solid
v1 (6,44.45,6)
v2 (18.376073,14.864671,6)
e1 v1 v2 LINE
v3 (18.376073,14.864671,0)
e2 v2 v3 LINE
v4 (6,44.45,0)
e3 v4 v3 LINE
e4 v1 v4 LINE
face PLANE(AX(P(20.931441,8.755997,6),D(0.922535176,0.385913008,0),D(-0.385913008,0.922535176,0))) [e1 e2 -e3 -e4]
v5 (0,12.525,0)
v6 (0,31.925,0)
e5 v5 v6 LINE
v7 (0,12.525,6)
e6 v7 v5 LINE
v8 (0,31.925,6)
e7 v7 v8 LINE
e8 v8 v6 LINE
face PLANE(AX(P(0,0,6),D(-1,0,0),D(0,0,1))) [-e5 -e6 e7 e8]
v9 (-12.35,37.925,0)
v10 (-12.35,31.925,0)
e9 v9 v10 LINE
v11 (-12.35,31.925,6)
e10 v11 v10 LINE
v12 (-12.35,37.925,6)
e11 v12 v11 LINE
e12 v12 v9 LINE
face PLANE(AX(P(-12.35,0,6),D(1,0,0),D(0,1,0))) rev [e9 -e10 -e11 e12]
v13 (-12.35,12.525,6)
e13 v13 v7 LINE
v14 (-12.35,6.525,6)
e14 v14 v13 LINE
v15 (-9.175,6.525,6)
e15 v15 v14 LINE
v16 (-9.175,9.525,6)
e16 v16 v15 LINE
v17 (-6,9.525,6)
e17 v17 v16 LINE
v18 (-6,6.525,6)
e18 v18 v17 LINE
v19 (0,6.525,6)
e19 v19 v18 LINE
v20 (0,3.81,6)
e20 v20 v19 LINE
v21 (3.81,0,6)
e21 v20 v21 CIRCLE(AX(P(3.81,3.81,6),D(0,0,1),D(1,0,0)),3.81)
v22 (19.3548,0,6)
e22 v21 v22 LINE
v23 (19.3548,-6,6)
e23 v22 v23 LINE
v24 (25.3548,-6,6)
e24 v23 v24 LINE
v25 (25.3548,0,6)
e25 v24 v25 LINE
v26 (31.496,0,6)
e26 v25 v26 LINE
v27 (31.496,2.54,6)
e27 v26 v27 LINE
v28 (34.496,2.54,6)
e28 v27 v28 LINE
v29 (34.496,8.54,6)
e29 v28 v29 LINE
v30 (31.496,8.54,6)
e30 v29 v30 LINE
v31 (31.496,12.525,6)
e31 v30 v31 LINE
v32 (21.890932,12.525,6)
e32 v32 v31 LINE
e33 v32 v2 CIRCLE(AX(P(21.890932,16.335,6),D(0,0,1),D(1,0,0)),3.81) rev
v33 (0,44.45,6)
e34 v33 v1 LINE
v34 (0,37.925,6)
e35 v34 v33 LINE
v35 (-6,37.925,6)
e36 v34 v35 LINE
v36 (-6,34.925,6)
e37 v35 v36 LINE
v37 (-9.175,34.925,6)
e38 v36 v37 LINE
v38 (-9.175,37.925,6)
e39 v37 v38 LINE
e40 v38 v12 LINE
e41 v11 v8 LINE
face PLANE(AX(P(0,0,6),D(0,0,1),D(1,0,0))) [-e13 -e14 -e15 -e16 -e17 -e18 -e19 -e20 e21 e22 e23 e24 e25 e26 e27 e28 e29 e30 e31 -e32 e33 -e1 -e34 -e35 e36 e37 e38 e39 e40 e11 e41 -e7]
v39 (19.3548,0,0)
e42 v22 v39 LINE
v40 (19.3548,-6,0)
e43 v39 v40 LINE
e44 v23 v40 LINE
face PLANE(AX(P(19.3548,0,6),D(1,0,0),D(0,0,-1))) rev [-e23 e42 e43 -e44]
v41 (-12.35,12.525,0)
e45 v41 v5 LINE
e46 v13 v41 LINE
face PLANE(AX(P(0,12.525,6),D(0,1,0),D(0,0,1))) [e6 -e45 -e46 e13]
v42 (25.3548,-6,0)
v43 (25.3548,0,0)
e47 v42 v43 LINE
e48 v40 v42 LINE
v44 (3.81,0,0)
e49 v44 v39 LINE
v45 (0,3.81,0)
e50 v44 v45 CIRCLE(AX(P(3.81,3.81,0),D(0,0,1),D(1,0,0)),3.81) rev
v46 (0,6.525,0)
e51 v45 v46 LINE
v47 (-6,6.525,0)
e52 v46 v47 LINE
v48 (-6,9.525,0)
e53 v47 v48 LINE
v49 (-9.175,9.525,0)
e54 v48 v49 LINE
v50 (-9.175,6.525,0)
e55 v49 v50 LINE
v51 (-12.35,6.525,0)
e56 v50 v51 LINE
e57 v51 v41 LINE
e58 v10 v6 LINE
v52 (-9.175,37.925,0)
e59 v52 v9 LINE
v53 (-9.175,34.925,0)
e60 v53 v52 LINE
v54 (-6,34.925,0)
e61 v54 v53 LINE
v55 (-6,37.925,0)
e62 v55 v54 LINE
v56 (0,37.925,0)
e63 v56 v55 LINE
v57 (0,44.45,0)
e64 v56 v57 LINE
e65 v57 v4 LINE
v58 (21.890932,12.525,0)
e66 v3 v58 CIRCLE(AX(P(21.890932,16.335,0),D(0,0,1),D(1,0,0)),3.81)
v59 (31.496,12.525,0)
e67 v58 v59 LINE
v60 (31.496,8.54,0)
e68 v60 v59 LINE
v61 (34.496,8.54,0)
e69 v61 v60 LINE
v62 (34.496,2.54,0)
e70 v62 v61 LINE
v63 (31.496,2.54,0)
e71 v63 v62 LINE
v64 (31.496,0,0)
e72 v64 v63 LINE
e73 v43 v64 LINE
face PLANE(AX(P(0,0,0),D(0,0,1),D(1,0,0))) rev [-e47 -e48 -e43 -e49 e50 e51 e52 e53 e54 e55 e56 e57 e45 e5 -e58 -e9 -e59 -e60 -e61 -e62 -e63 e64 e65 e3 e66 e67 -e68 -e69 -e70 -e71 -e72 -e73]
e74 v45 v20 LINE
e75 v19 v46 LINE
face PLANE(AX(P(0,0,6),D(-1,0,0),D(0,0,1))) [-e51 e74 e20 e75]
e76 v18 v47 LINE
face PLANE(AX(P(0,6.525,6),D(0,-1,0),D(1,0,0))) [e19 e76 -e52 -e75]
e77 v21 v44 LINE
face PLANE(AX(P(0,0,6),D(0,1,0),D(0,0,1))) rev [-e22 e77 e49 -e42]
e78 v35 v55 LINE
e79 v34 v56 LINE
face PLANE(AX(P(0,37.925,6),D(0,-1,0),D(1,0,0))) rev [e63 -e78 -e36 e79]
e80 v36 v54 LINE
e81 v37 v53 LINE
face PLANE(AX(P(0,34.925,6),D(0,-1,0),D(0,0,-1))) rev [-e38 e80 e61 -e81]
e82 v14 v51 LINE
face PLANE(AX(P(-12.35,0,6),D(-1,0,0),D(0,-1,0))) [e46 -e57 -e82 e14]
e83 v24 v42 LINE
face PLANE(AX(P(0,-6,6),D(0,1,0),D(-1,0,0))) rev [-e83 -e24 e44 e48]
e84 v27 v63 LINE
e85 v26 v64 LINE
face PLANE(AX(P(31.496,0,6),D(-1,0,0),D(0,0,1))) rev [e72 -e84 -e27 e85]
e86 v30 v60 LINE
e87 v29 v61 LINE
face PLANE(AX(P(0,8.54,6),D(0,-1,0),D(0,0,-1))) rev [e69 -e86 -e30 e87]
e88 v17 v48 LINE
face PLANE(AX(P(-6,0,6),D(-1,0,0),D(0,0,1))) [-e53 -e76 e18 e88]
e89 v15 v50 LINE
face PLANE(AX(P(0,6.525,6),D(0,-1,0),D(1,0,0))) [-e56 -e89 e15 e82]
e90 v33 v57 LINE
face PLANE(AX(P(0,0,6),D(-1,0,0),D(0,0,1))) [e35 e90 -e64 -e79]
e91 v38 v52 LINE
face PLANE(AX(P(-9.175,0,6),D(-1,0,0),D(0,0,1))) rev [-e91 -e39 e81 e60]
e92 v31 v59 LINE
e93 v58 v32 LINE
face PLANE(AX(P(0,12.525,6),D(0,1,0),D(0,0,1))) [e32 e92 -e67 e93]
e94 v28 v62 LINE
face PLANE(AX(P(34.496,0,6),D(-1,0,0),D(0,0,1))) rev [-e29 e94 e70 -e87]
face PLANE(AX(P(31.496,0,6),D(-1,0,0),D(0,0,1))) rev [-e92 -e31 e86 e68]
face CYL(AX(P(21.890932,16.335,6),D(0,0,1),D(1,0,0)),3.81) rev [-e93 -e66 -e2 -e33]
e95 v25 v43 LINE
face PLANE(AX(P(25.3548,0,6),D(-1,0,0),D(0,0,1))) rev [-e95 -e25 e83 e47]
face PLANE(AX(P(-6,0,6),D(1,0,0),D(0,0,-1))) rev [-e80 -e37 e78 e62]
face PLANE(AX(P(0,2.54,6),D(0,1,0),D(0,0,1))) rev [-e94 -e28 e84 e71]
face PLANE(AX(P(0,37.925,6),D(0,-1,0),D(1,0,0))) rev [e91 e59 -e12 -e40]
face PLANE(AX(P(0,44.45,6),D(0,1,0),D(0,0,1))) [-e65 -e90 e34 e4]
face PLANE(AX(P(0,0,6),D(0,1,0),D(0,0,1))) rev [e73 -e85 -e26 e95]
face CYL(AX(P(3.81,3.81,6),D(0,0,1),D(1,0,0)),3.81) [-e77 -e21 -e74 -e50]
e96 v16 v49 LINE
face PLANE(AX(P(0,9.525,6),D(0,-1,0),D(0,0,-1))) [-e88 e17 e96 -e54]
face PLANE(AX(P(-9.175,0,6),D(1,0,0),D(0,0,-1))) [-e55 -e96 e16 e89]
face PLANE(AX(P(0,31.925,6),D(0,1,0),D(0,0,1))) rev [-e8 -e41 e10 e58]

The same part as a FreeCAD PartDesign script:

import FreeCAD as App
import Part
import Sketcher
from FreeCAD import Vector
Q = App.Units.Quantity


def edges_at(feature, points):
    """Names of the edges that pass closest to the given points."""
    edges = feature.Shape.Edges
    near = lambda p: min(range(len(edges)), key=lambda i: edges[i].distToShape(Part.Vertex(*p))[0])
    return sorted({f"Edge{near(p) + 1}" for p in points})

doc = App.newDocument("Part")
body = doc.addObject("PartDesign::Body", "Body")

sketch1 = doc.addObject("Sketcher::SketchObject", "Sketch")
body.addObject(sketch1)
sketch1.AttachmentSupport = (doc.XY_Plane, [""])
sketch1.MapMode = "FlatFace"
sketch1.addGeometry([
    Part.LineSegment(Vector(-12.35, 31.925, 0), Vector(0, 31.925, 0)),
    Part.LineSegment(Vector(0, 31.925, 0), Vector(0, 12.525, 0)),
    Part.LineSegment(Vector(0, 12.525, 0), Vector(-12.35, 12.525, 0)),
    Part.LineSegment(Vector(-12.35, 12.525, 0), Vector(-12.35, 6.525, 0)),
    Part.LineSegment(Vector(-12.35, 6.525, 0), Vector(-9.175, 6.525, 0)),
    Part.LineSegment(Vector(-9.175, 6.525, 0), Vector(-9.175, 9.525, 0)),
    Part.LineSegment(Vector(-9.175, 9.525, 0), Vector(-6, 9.525, 0)),
    Part.LineSegment(Vector(-6, 9.525, 0), Vector(-6, 6.525, 0)),
    Part.LineSegment(Vector(-6, 6.525, 0), Vector(0, 6.525, 0)),
    Part.LineSegment(Vector(0, 6.525, 0), Vector(0, 0, 0)),
    Part.LineSegment(Vector(0, 0, 0), Vector(19.3548, 0, 0)),
    Part.LineSegment(Vector(19.3548, 0, 0), Vector(19.3548, -6, 0)),
    Part.LineSegment(Vector(19.3548, -6, 0), Vector(25.3548, -6, 0)),
    Part.LineSegment(Vector(25.3548, -6, 0), Vector(25.3548, 0, 0)),
    Part.LineSegment(Vector(25.3548, 0, 0), Vector(31.496, 0, 0)),
    Part.LineSegment(Vector(31.496, 0, 0), Vector(31.496, 2.54, 0)),
    Part.LineSegment(Vector(31.496, 2.54, 0), Vector(34.496, 2.54, 0)),
    Part.LineSegment(Vector(34.496, 2.54, 0), Vector(34.496, 8.54, 0)),
    Part.LineSegment(Vector(34.496, 8.54, 0), Vector(31.496, 8.54, 0)),
    Part.LineSegment(Vector(31.496, 8.54, 0), Vector(31.496, 12.525, 0)),
    Part.LineSegment(Vector(31.496, 12.525, 0), Vector(19.3548, 12.525, 0)),
    Part.LineSegment(Vector(19.3548, 12.525, 0), Vector(6, 44.45, 0)),
    Part.LineSegment(Vector(6, 44.45, 0), Vector(0, 44.45, 0)),
    Part.LineSegment(Vector(0, 44.45, 0), Vector(0, 37.925, 0)),
    Part.LineSegment(Vector(0, 37.925, 0), Vector(-6, 37.925, 0)),
    Part.LineSegment(Vector(-6, 37.925, 0), Vector(-6, 34.925, 0)),
    Part.LineSegment(Vector(-6, 34.925, 0), Vector(-9.175, 34.925, 0)),
    Part.LineSegment(Vector(-9.175, 34.925, 0), Vector(-9.175, 37.925, 0)),
    Part.LineSegment(Vector(-9.175, 37.925, 0), Vector(-12.35, 37.925, 0)),
    Part.LineSegment(Vector(-12.35, 37.925, 0), Vector(-12.35, 31.925, 0)),
], False)
sketch1.addConstraint([
    Sketcher.Constraint("Coincident", 0, 2, 1, 1),
    Sketcher.Constraint("Coincident", 1, 2, 2, 1),
    Sketcher.Constraint("Coincident", 2, 2, 3, 1),
    Sketcher.Constraint("Coincident", 3, 2, 4, 1),
    Sketcher.Constraint("Coincident", 4, 2, 5, 1),
    Sketcher.Constraint("Coincident", 5, 2, 6, 1),
    Sketcher.Constraint("Coincident", 6, 2, 7, 1),
    Sketcher.Constraint("Coincident", 7, 2, 8, 1),
    Sketcher.Constraint("Coincident", 8, 2, 9, 1),
    Sketcher.Constraint("Coincident", 9, 2, 10, 1),
    Sketcher.Constraint("Coincident", 10, 2, 11, 1),
    Sketcher.Constraint("Coincident", 11, 2, 12, 1),
    Sketcher.Constraint("Coincident", 12, 2, 13, 1),
    Sketcher.Constraint("Coincident", 13, 2, 14, 1),
    Sketcher.Constraint("Coincident", 14, 2, 15, 1),
    Sketcher.Constraint("Coincident", 15, 2, 16, 1),
    Sketcher.Constraint("Coincident", 16, 2, 17, 1),
    Sketcher.Constraint("Coincident", 17, 2, 18, 1),
    Sketcher.Constraint("Coincident", 18, 2, 19, 1),
    Sketcher.Constraint("Coincident", 19, 2, 20, 1),
    Sketcher.Constraint("Coincident", 20, 2, 21, 1),
    Sketcher.Constraint("Coincident", 21, 2, 22, 1),
    Sketcher.Constraint("Coincident", 22, 2, 23, 1),
    Sketcher.Constraint("Coincident", 23, 2, 24, 1),
    Sketcher.Constraint("Coincident", 24, 2, 25, 1),
    Sketcher.Constraint("Coincident", 25, 2, 26, 1),
    Sketcher.Constraint("Coincident", 26, 2, 27, 1),
    Sketcher.Constraint("Coincident", 27, 2, 28, 1),
    Sketcher.Constraint("Coincident", 28, 2, 29, 1),
    Sketcher.Constraint("Coincident", 29, 2, 0, 1),
    Sketcher.Constraint("Horizontal", 0),
    Sketcher.Constraint("Vertical", 1),
    Sketcher.Constraint("Horizontal", 2),
    Sketcher.Constraint("Vertical", 3),
    Sketcher.Constraint("Horizontal", 4),
    Sketcher.Constraint("Vertical", 5),
    Sketcher.Constraint("Horizontal", 6),
    Sketcher.Constraint("Vertical", 7),
    Sketcher.Constraint("Horizontal", 8),
    Sketcher.Constraint("Vertical", 9),
    Sketcher.Constraint("Horizontal", 10),
    Sketcher.Constraint("Vertical", 11),
    Sketcher.Constraint("Horizontal", 12),
    Sketcher.Constraint("Vertical", 13),
    Sketcher.Constraint("Horizontal", 14),
    Sketcher.Constraint("Vertical", 15),
    Sketcher.Constraint("Horizontal", 16),
    Sketcher.Constraint("Vertical", 17),
    Sketcher.Constraint("Horizontal", 18),
    Sketcher.Constraint("Vertical", 19),
    Sketcher.Constraint("Horizontal", 20),
    Sketcher.Constraint("Horizontal", 22),
    Sketcher.Constraint("Vertical", 23),
    Sketcher.Constraint("Horizontal", 24),
    Sketcher.Constraint("Vertical", 25),
    Sketcher.Constraint("Horizontal", 26),
    Sketcher.Constraint("Vertical", 27),
    Sketcher.Constraint("Horizontal", 28),
    Sketcher.Constraint("Vertical", 29),
    Sketcher.Constraint("Coincident", 9, 2, -1, 1),
    Sketcher.Constraint("PointOnObject", 0, 2, -2),
    Sketcher.Constraint("PointOnObject", 13, 2, -1),
    Sketcher.Constraint("PointOnObject", 22, 2, -2),
    Sketcher.Constraint("Horizontal", 4, 2, 7, 2),
    Sketcher.Constraint("Horizontal", 2, 2, 19, 2),
    Sketcher.Constraint("Horizontal", 24, 2, 27, 2),
    Sketcher.Constraint("Vertical", 15, 2, 18, 2),
    Sketcher.Constraint("Vertical", 11, 2, 20, 2),
    Sketcher.Constraint("Vertical", 7, 2, 24, 2),
    Sketcher.Constraint("Vertical", 5, 2, 26, 2),
    Sketcher.Constraint("Vertical", 3, 2, 28, 2),
    Sketcher.Constraint("Equal", 4, 6),
    Sketcher.Constraint("Equal", 8, 12),
    Sketcher.Constraint("Equal", 12, 22),
    Sketcher.Constraint("Equal", 24, 3),
    Sketcher.Constraint("Equal", 18, 5),
    Sketcher.Constraint("Equal", 3, 11),
    Sketcher.Constraint("Equal", 13, 17),
    Sketcher.Constraint("Equal", 9, 23),
    Sketcher.Constraint("Equal", 7, 25),
    Sketcher.Constraint("Equal", 17, 29),
    Sketcher.Constraint("DistanceY", 15, 1, 15, 2, Q("0.1 in")),
    Sketcher.Constraint("DistanceY", 3, 2, 0, 2, Q("1 in")),
    Sketcher.Constraint("DistanceX", 4, 1, 4, 2, Q("0.125 in")),
    Sketcher.Constraint("DistanceX", 10, 1, 10, 2, Q("0.762 in")),
    Sketcher.Constraint("DistanceX", 20, 2, 20, 1, Q("0.478 in")),
    Sketcher.Constraint("DistanceY", -1, 1, 21, 2, Q("1.75 in")),
    Sketcher.Constraint("DistanceY", -1, 1, 5, 2, Q("0.375 in")),
    Sketcher.Constraint("DistanceX", 0, 1, 0, 2, 12.35),
])
pad1 = doc.addObject("PartDesign::Pad", "Pad")
body.addObject(pad1)
pad1.Profile = sketch1
pad1.Length = 6
doc.recompute()

fillet = doc.addObject("PartDesign::Fillet", "Fillet")
body.addObject(fillet)
fillet.Base = (pad1, edges_at(pad1, [(19.355, 12.525, 3), (0, 0, 3)]))
fillet.Radius = Q("0.15 in")

doc.recompute()
